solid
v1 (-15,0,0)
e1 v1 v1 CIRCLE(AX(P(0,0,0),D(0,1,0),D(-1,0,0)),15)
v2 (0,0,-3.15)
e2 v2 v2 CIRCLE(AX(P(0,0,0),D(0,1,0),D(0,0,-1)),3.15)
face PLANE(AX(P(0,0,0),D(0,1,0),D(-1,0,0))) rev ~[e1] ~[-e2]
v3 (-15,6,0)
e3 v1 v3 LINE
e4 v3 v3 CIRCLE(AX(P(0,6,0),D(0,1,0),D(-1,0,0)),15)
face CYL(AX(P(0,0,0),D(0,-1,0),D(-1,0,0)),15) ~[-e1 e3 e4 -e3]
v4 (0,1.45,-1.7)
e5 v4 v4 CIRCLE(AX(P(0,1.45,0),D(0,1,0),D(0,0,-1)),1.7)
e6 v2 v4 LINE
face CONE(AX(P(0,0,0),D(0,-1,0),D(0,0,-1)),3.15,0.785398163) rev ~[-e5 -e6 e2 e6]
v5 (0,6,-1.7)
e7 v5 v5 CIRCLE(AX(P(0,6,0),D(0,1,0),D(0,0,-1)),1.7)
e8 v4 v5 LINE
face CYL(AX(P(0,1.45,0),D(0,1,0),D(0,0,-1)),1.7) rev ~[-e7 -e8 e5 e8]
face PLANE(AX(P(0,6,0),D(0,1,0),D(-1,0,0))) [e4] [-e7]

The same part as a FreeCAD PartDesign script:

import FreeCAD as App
import Part
import Sketcher
from FreeCAD import Vector
Q = App.Units.Quantity

doc = App.newDocument("Part")
body = doc.addObject("PartDesign::Body", "Body")

# Sketch on XZ plane
sketch1 = doc.addObject("Sketcher::SketchObject", "Sketch")
body.addObject(sketch1)
sketch1.AttachmentSupport = (doc.XZ_Plane, [""])
sketch1.MapMode = "FlatFace"
sketch1.addGeometry(Part.Circle(Vector(0, 0, 0), Vector(0, 0, 1), 15), False)
sketch1.addConstraint(Sketcher.Constraint("Coincident", 0, 3, -1, 1))
sketch1.addConstraint(Sketcher.Constraint("Diameter", 0, Q("30 mm")))
pad1 = doc.addObject("PartDesign::Pad", "Pad")
body.addObject(pad1)
pad1.Profile = sketch1
pad1.Length = 6
pad1.Reversed = True

# Sketch on XZ plane
sketch2 = doc.addObject("Sketcher::SketchObject", "Sketch001")
body.addObject(sketch2)
sketch2.AttachmentSupport = (doc.XZ_Plane, [""])
sketch2.MapMode = "FlatFace"
sketch2.addGeometry(Part.Circle(Vector(0, 0, 0), Vector(0, 0, 1), 1.7), False)
sketch2.addConstraint(Sketcher.Constraint("Coincident", 0, 3, -1, 1))
sketch2.addConstraint(Sketcher.Constraint("Diameter", 0, Q("3.4 mm")))
doc.recompute()
hole = doc.addObject("PartDesign::Hole", "Hole")
body.addObject(hole)
hole.Profile = sketch2
hole.ThreadType = "None"
hole.Diameter = 3.4
hole.DepthType = "Dimension"
hole.Depth = 6
hole.DrillPoint = "Angled"
hole.DrillPointAngle = 118
hole.HoleCutType = "Countersink"
hole.HoleCutDiameter = 6.3
hole.HoleCutCountersinkAngle = 90

doc.recompute()
